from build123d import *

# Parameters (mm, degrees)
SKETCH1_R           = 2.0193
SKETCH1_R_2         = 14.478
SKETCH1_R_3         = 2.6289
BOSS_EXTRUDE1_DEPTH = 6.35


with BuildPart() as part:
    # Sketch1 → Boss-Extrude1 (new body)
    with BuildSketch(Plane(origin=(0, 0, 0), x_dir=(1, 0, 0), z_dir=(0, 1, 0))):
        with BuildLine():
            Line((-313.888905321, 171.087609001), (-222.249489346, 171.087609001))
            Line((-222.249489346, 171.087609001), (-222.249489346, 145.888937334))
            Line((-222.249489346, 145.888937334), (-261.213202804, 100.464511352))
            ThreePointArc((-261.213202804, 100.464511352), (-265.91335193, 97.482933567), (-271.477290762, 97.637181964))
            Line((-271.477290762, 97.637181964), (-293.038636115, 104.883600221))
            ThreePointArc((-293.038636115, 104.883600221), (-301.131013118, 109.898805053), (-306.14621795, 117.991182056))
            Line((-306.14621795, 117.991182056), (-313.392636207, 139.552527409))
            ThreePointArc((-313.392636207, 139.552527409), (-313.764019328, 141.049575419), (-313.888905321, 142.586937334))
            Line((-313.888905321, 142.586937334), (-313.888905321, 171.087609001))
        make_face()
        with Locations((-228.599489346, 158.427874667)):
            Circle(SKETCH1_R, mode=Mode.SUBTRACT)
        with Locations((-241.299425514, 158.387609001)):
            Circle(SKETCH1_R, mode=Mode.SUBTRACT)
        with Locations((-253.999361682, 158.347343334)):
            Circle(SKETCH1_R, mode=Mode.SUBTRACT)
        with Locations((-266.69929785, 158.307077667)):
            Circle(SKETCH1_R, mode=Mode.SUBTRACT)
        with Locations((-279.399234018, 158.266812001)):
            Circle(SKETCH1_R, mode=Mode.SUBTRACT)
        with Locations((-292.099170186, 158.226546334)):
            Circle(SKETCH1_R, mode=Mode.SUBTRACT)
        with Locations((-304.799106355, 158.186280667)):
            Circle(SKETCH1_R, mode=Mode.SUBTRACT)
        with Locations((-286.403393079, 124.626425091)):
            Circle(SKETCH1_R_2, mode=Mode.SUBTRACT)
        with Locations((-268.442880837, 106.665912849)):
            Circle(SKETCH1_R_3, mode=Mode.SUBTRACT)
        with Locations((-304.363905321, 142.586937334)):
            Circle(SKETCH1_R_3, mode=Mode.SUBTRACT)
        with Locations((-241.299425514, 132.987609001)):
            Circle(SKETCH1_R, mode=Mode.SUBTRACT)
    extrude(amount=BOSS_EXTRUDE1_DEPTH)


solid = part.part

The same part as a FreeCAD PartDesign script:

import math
import FreeCAD as App
import Part
import Sketcher
Q = App.Units.Quantity

doc = App.newDocument("Part")
body = doc.addObject("PartDesign::Body", "Body")

# Sketch on XZ plane
sketch1 = body.newObject("Sketcher::SketchObject", "Sketch")
sketch1.AttachmentSupport = (doc.getObject("XZ_Plane"), [""])
sketch1.MapMode = "FlatFace"
sketch1.addGeometry([
    Part.LineSegment(App.Vector(-222.2, -171.1, 0), App.Vector(-313.9, -171.1, 0)),  # 0
    Part.LineSegment(App.Vector(-313.9, -171.1, 0), App.Vector(-313.9, -142.6, 0)),  # 1
    Part.ArcOfCircle(Part.Circle(App.Vector(-304.4, -142.6, 0), App.Vector(0, 0, 1), 9.5), math.radians(161.42), math.radians(180)),  # 2
    Part.LineSegment(App.Vector(-313.4, -139.6, 0), App.Vector(-306.1, -118, 0)),  # 3
    Part.ArcOfCircle(Part.Circle(App.Vector(-286.4, -124.6, 0), App.Vector(0, 0, 1), 20.8), math.radians(109), math.radians(161)),  # 4
    Part.LineSegment(App.Vector(-293, -104.9, 0), App.Vector(-271.5, -97.6, 0)),  # 5
    Part.ArcOfCircle(Part.Circle(App.Vector(-268.4, -106.7, 0), App.Vector(0, 0, 1), 9.5), math.radians(41), math.radians(109)),  # 6
    Part.LineSegment(App.Vector(-261.2, -100.5, 0), App.Vector(-222.2, -145.9, 0)),  # 7
    Part.LineSegment(App.Vector(-222.2, -145.9, 0), App.Vector(-222.2, -171.1, 0)),  # 8
    Part.Circle(App.Vector(-268.4, -106.7, 0), App.Vector(0, 0, 1), 2.6),  # 9
    Part.Circle(App.Vector(-286.4, -124.6, 0), App.Vector(0, 0, 1), 14.5),  # 10
    Part.Circle(App.Vector(-241.3, -133, 0), App.Vector(0, 0, 1), 2),  # 11
    Part.Circle(App.Vector(-228.6, -158.4, 0), App.Vector(0, 0, 1), 2),  # 12
    Part.Circle(App.Vector(-241.3, -158.4, 0), App.Vector(0, 0, 1), 2),  # 13
    Part.Circle(App.Vector(-254, -158.3, 0), App.Vector(0, 0, 1), 2),  # 14
    Part.Circle(App.Vector(-266.7, -158.3, 0), App.Vector(0, 0, 1), 2),  # 15
    Part.Circle(App.Vector(-304.4, -142.6, 0), App.Vector(0, 0, 1), 2.6),  # 16
    Part.Circle(App.Vector(-279.4, -158.3, 0), App.Vector(0, 0, 1), 2),  # 17
    Part.Circle(App.Vector(-292.1, -158.2, 0), App.Vector(0, 0, 1), 2),  # 18
    Part.Circle(App.Vector(-304.8, -158.2, 0), App.Vector(0, 0, 1), 2),  # 19
], False)
sketch1.addConstraint([
    Sketcher.Constraint("Coincident", 0, 2, 1, 1),
    Sketcher.Constraint("Tangent", 1, 2, 2, 2),
    Sketcher.Constraint("Tangent", 2, 1, 3, 1),
    Sketcher.Constraint("Tangent", 3, 2, 4, 2),
    Sketcher.Constraint("Tangent", 4, 1, 5, 1),
    Sketcher.Constraint("Tangent", 5, 2, 6, 2),
    Sketcher.Constraint("Tangent", 6, 1, 7, 1),
    Sketcher.Constraint("Coincident", 7, 2, 8, 1),
    Sketcher.Constraint("Coincident", 8, 2, 0, 1),
    Sketcher.Constraint("Horizontal", 0),
    Sketcher.Constraint("Vertical", 1),
    Sketcher.Constraint("Vertical", 8),
    Sketcher.Constraint("Coincident", 9, 3, 6, 3),
    Sketcher.Constraint("Coincident", 10, 3, 4, 3),
    Sketcher.Constraint("Coincident", 16, 3, 2, 3),
    Sketcher.Constraint("Equal", 2, 6),
    Sketcher.Constraint("Equal", 11, 12),
    Sketcher.Constraint("Equal", 12, 13),
    Sketcher.Constraint("Equal", 13, 14),
    Sketcher.Constraint("Equal", 14, 15),
    Sketcher.Constraint("Equal", 9, 16),
    Sketcher.Constraint("Equal", 15, 17),
    Sketcher.Constraint("Equal", 17, 18),
    Sketcher.Constraint("Equal", 18, 19),
    Sketcher.Constraint("Vertical", 11, 3, 13, 3),
    Sketcher.Constraint("Equal", 3, 5),
    Sketcher.Constraint("Diameter", 10, Q("1.14 in")),
    Sketcher.Constraint("Radius", 4, Q("0.82 in")),
    Sketcher.Constraint("Diameter", 9, Q("0.207 in")),
    Sketcher.Constraint("Diameter", 11, Q("0.159 in")),
    Sketcher.Constraint("Radius", 2, Q("0.375 in")),
    Sketcher.Constraint("DistanceY", 13, 3, 11, 3, Q("1 in")),
    Sketcher.Constraint("DistanceY", 8, 2, 13, 3, Q("0.5 in")),
    Sketcher.Constraint("DistanceX", 12, 3, 7, 2, Q("0.25 in")),
    Sketcher.Constraint("DistanceY", 1, 1, 1, 2, Q("28.500672 mm")),
    Sketcher.Constraint("DistanceY", 8, 2, 8, 1, Q("25.198672 mm")),
    Sketcher.Constraint("DistanceY", 4, 1, -1, 1, Q("104.8836 mm")),
    Sketcher.Constraint("DistanceX", 19, 3, 16, 3, Q("0.435201 mm")),
    Sketcher.Constraint("DistanceY", 9, 3, 6, 1, Q("6.201401 mm")),
    Sketcher.Constraint("DistanceX", 0, 2, 0, 1, Q("91.639416 mm")),
    Sketcher.Constraint("DistanceX", 6, 3, -1, 1, Q("268.442881 mm")),
    Sketcher.Constraint("DistanceY", 11, 3, -1, 1, Q("132.987609 mm")),
    Sketcher.Constraint("DistanceX", 12, 3, -1, 1, Q("228.599489 mm")),
    Sketcher.Constraint("DistanceX", 14, 3, -1, 1, Q("253.999362 mm")),
    Sketcher.Constraint("DistanceX", 18, 3, -1, 1, Q("292.09917 mm")),
    Sketcher.Constraint("DistanceY", 19, 3, -1, 1, Q("158.186281 mm")),
    Sketcher.Constraint("DistanceX", 2, 3, 11, 3, Q("63.06448 mm")),
    Sketcher.Constraint("DistanceY", 12, 3, 6, 3, Q("51.761962 mm")),
    Sketcher.Constraint("DistanceY", 12, 3, 14, 3, Q("0.080531 mm")),
    Sketcher.Constraint("DistanceY", 13, 3, 15, 3, Q("0.080531 mm")),
    Sketcher.Constraint("DistanceX", 15, 3, 12, 3, Q("38.099809 mm")),
    Sketcher.Constraint("DistanceY", 14, 3, 17, 3, Q("0.080531 mm")),
    Sketcher.Constraint("DistanceX", 16, 3, 17, 3, Q("24.964671 mm")),
    Sketcher.Constraint("DistanceY", 18, 3, 16, 3, Q("15.639609 mm")),
])
pad1 = body.newObject("PartDesign::Pad", "Pad")
pad1.Profile = sketch1
pad1.Length = Q("0.25 in")
pad1.Reversed = True

doc.recompute()
